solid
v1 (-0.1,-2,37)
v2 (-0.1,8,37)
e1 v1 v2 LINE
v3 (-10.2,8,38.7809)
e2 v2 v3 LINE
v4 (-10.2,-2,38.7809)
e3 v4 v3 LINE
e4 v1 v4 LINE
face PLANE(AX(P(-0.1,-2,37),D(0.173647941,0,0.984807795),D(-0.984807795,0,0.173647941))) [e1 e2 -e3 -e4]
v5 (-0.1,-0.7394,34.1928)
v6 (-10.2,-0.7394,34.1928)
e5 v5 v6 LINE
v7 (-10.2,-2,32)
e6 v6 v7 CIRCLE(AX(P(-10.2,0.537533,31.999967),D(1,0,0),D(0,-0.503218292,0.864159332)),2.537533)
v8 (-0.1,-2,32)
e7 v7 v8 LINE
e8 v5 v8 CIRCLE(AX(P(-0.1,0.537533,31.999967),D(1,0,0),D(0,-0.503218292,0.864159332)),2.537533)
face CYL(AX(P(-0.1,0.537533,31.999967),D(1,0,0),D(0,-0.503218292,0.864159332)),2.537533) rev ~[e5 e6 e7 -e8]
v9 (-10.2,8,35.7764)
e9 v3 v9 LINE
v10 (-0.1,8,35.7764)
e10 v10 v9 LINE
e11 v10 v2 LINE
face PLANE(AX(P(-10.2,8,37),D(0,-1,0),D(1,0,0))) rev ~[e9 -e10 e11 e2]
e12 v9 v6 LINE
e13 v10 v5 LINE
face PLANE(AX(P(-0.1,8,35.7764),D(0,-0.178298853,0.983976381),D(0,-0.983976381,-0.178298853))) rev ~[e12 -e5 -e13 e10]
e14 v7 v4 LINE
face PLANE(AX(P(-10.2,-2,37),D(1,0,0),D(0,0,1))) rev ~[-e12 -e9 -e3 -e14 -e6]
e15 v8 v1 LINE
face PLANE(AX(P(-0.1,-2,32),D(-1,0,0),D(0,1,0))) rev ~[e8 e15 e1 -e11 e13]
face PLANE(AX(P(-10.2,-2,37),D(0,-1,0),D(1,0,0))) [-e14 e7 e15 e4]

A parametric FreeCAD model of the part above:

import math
import FreeCAD as App
import Part
import Sketcher
from FreeCAD import Vector
Q = App.Units.Quantity

doc = App.newDocument("Part")
body = doc.addObject("PartDesign::Body", "Body")

# Sketch on XY plane
sketch1 = body.newObject("Sketcher::SketchObject", "Sketch")
sketch1.AttachmentSupport = (doc.getObject("XY_Plane"), [""])
sketch1.MapMode = "FlatFace"
sketch1.AttachmentOffset = App.Placement(Vector(0, 0, 32), App.Rotation())
sketch1.addGeometry(Part.LineSegment(Vector(-10.2, 8, 0), Vector(-10.2, -2, 0)), False)
sketch1.addGeometry(Part.LineSegment(Vector(-10.2, -2, 0), Vector(-0.1, -2, 0)), False)
sketch1.addGeometry(Part.LineSegment(Vector(-0.1, -2, 0), Vector(-0.1, 8, 0)), False)
sketch1.addGeometry(Part.LineSegment(Vector(-0.1, 8, 0), Vector(-10.2, 8, 0)), False)
sketch1.addConstraint(Sketcher.Constraint("Coincident", 0, 2, 1, 1))
sketch1.addConstraint(Sketcher.Constraint("Coincident", 1, 2, 2, 1))
sketch1.addConstraint(Sketcher.Constraint("Coincident", 2, 2, 3, 1))
sketch1.addConstraint(Sketcher.Constraint("Coincident", 3, 2, 0, 1))
sketch1.addConstraint(Sketcher.Constraint("Vertical", 0))
sketch1.addConstraint(Sketcher.Constraint("Horizontal", 1))
sketch1.addConstraint(Sketcher.Constraint("Vertical", 2))
sketch1.addConstraint(Sketcher.Constraint("Horizontal", 3))
sketch1.addConstraint(Sketcher.Constraint("DistanceY", 0, 2, 0, 1, 10.0))
sketch1.addConstraint(Sketcher.Constraint("DistanceX", 1, 1, 1, 2, 10.1))
sketch1.addConstraint(Sketcher.Constraint("DistanceY", 0, 2, -1, 1, 2.0))
sketch1.addConstraint(Sketcher.Constraint("DistanceX", 0, 2, -1, 1, 10.2))
pad1 = body.newObject("PartDesign::Pad", "Pad")
pad1.Profile = sketch1
pad1.Length = 5

# Sketch on YZ plane
sketch2 = body.newObject("Sketcher::SketchObject", "Sketch001")
sketch2.AttachmentSupport = (doc.getObject("YZ_Plane"), [""])
sketch2.MapMode = "FlatFace"
sketch2.AttachmentOffset = App.Placement(Vector(0, 0, -0.1), App.Rotation())
sketch2.addGeometry(Part.LineSegment(Vector(8, 32, 0), Vector(8, 35.7764, 0)), False)
sketch2.addGeometry(Part.LineSegment(Vector(8, 35.7764, 0), Vector(-0.7394, 34.1928, 0)), False)
sketch2.addGeometry(Part.ArcOfCircle(Part.Circle(Vector(0.5375, 32, 0), Vector(0, 0, 1), 2.537488), math.radians(120.212878), math.radians(180)), False)
sketch2.addGeometry(Part.LineSegment(Vector(-2, 32, 0), Vector(8, 32, 0)), False)
sketch2.addConstraint(Sketcher.Constraint("Coincident", 0, 2, 1, 1))
sketch2.addConstraint(Sketcher.Constraint("Coincident", 1, 2, 2, 1))
sketch2.addConstraint(Sketcher.Constraint("Coincident", 2, 2, 3, 1))
sketch2.addConstraint(Sketcher.Constraint("Coincident", 3, 2, 0, 1))
sketch2.addConstraint(Sketcher.Constraint("Vertical", 0))
sketch2.addConstraint(Sketcher.Constraint("Horizontal", 3))
sketch2.addConstraint(Sketcher.Constraint("DistanceX", 3, 1, 3, 2, 10.0))
sketch2.addConstraint(Sketcher.Constraint("DistanceY", -1, 1, 2, 3, 32.0))
sketch2.addConstraint(Sketcher.Constraint("DistanceX", -1, 1, 0, 2, 8.0))
sketch2.addConstraint(Sketcher.Constraint("DistanceY", -1, 1, 2, 2, 32.0))
sketch2.addConstraint(Sketcher.Constraint("Angle", 1, Q("-169.7293 deg")))
sketch2.addConstraint(Sketcher.Constraint("Radius", 2, 2.5375))
sketch2.addConstraint(Sketcher.Constraint("DistanceY", 0, 1, 0, 2, 3.7764))
pocket1 = body.newObject("PartDesign::Pocket", "Pocket")
pocket1.Profile = sketch2
pocket1.Type = "ThroughAll"

# Sketch on XZ plane
sketch3 = body.newObject("Sketcher::SketchObject", "Sketch002")
sketch3.AttachmentSupport = (doc.getObject("XZ_Plane"), [""])
sketch3.MapMode = "FlatFace"
sketch3.AttachmentOffset = App.Placement(Vector(0, 0, 2), App.Rotation())
sketch3.addGeometry(Part.LineSegment(Vector(-10.2, 37, 0), Vector(-0.1, 37, 0)), False)
sketch3.addGeometry(Part.LineSegment(Vector(-0.1, 37, 0), Vector(-10.2, 38.7809, 0)), False)
sketch3.addGeometry(Part.LineSegment(Vector(-10.2, 38.7809, 0), Vector(-10.2, 37, 0)), False)
sketch3.addConstraint(Sketcher.Constraint("Coincident", 0, 2, 1, 1))
sketch3.addConstraint(Sketcher.Constraint("Coincident", 1, 2, 2, 1))
sketch3.addConstraint(Sketcher.Constraint("Coincident", 2, 2, 0, 1))
sketch3.addConstraint(Sketcher.Constraint("Horizontal", 0))
sketch3.addConstraint(Sketcher.Constraint("Vertical", 2))
sketch3.addConstraint(Sketcher.Constraint("Angle", 1, Q("170 deg")))
sketch3.addConstraint(Sketcher.Constraint("DistanceX", 0, 1, 0, 2, 10.1))
sketch3.addConstraint(Sketcher.Constraint("DistanceY", -1, 1, 0, 2, 37.0))
sketch3.addConstraint(Sketcher.Constraint("DistanceX", 0, 2, -1, 1, 0.1))
pad2 = body.newObject("PartDesign::Pad", "Pad001")
pad2.Profile = sketch3
pad2.Length = 10
pad2.Reversed = True

doc.recompute()
